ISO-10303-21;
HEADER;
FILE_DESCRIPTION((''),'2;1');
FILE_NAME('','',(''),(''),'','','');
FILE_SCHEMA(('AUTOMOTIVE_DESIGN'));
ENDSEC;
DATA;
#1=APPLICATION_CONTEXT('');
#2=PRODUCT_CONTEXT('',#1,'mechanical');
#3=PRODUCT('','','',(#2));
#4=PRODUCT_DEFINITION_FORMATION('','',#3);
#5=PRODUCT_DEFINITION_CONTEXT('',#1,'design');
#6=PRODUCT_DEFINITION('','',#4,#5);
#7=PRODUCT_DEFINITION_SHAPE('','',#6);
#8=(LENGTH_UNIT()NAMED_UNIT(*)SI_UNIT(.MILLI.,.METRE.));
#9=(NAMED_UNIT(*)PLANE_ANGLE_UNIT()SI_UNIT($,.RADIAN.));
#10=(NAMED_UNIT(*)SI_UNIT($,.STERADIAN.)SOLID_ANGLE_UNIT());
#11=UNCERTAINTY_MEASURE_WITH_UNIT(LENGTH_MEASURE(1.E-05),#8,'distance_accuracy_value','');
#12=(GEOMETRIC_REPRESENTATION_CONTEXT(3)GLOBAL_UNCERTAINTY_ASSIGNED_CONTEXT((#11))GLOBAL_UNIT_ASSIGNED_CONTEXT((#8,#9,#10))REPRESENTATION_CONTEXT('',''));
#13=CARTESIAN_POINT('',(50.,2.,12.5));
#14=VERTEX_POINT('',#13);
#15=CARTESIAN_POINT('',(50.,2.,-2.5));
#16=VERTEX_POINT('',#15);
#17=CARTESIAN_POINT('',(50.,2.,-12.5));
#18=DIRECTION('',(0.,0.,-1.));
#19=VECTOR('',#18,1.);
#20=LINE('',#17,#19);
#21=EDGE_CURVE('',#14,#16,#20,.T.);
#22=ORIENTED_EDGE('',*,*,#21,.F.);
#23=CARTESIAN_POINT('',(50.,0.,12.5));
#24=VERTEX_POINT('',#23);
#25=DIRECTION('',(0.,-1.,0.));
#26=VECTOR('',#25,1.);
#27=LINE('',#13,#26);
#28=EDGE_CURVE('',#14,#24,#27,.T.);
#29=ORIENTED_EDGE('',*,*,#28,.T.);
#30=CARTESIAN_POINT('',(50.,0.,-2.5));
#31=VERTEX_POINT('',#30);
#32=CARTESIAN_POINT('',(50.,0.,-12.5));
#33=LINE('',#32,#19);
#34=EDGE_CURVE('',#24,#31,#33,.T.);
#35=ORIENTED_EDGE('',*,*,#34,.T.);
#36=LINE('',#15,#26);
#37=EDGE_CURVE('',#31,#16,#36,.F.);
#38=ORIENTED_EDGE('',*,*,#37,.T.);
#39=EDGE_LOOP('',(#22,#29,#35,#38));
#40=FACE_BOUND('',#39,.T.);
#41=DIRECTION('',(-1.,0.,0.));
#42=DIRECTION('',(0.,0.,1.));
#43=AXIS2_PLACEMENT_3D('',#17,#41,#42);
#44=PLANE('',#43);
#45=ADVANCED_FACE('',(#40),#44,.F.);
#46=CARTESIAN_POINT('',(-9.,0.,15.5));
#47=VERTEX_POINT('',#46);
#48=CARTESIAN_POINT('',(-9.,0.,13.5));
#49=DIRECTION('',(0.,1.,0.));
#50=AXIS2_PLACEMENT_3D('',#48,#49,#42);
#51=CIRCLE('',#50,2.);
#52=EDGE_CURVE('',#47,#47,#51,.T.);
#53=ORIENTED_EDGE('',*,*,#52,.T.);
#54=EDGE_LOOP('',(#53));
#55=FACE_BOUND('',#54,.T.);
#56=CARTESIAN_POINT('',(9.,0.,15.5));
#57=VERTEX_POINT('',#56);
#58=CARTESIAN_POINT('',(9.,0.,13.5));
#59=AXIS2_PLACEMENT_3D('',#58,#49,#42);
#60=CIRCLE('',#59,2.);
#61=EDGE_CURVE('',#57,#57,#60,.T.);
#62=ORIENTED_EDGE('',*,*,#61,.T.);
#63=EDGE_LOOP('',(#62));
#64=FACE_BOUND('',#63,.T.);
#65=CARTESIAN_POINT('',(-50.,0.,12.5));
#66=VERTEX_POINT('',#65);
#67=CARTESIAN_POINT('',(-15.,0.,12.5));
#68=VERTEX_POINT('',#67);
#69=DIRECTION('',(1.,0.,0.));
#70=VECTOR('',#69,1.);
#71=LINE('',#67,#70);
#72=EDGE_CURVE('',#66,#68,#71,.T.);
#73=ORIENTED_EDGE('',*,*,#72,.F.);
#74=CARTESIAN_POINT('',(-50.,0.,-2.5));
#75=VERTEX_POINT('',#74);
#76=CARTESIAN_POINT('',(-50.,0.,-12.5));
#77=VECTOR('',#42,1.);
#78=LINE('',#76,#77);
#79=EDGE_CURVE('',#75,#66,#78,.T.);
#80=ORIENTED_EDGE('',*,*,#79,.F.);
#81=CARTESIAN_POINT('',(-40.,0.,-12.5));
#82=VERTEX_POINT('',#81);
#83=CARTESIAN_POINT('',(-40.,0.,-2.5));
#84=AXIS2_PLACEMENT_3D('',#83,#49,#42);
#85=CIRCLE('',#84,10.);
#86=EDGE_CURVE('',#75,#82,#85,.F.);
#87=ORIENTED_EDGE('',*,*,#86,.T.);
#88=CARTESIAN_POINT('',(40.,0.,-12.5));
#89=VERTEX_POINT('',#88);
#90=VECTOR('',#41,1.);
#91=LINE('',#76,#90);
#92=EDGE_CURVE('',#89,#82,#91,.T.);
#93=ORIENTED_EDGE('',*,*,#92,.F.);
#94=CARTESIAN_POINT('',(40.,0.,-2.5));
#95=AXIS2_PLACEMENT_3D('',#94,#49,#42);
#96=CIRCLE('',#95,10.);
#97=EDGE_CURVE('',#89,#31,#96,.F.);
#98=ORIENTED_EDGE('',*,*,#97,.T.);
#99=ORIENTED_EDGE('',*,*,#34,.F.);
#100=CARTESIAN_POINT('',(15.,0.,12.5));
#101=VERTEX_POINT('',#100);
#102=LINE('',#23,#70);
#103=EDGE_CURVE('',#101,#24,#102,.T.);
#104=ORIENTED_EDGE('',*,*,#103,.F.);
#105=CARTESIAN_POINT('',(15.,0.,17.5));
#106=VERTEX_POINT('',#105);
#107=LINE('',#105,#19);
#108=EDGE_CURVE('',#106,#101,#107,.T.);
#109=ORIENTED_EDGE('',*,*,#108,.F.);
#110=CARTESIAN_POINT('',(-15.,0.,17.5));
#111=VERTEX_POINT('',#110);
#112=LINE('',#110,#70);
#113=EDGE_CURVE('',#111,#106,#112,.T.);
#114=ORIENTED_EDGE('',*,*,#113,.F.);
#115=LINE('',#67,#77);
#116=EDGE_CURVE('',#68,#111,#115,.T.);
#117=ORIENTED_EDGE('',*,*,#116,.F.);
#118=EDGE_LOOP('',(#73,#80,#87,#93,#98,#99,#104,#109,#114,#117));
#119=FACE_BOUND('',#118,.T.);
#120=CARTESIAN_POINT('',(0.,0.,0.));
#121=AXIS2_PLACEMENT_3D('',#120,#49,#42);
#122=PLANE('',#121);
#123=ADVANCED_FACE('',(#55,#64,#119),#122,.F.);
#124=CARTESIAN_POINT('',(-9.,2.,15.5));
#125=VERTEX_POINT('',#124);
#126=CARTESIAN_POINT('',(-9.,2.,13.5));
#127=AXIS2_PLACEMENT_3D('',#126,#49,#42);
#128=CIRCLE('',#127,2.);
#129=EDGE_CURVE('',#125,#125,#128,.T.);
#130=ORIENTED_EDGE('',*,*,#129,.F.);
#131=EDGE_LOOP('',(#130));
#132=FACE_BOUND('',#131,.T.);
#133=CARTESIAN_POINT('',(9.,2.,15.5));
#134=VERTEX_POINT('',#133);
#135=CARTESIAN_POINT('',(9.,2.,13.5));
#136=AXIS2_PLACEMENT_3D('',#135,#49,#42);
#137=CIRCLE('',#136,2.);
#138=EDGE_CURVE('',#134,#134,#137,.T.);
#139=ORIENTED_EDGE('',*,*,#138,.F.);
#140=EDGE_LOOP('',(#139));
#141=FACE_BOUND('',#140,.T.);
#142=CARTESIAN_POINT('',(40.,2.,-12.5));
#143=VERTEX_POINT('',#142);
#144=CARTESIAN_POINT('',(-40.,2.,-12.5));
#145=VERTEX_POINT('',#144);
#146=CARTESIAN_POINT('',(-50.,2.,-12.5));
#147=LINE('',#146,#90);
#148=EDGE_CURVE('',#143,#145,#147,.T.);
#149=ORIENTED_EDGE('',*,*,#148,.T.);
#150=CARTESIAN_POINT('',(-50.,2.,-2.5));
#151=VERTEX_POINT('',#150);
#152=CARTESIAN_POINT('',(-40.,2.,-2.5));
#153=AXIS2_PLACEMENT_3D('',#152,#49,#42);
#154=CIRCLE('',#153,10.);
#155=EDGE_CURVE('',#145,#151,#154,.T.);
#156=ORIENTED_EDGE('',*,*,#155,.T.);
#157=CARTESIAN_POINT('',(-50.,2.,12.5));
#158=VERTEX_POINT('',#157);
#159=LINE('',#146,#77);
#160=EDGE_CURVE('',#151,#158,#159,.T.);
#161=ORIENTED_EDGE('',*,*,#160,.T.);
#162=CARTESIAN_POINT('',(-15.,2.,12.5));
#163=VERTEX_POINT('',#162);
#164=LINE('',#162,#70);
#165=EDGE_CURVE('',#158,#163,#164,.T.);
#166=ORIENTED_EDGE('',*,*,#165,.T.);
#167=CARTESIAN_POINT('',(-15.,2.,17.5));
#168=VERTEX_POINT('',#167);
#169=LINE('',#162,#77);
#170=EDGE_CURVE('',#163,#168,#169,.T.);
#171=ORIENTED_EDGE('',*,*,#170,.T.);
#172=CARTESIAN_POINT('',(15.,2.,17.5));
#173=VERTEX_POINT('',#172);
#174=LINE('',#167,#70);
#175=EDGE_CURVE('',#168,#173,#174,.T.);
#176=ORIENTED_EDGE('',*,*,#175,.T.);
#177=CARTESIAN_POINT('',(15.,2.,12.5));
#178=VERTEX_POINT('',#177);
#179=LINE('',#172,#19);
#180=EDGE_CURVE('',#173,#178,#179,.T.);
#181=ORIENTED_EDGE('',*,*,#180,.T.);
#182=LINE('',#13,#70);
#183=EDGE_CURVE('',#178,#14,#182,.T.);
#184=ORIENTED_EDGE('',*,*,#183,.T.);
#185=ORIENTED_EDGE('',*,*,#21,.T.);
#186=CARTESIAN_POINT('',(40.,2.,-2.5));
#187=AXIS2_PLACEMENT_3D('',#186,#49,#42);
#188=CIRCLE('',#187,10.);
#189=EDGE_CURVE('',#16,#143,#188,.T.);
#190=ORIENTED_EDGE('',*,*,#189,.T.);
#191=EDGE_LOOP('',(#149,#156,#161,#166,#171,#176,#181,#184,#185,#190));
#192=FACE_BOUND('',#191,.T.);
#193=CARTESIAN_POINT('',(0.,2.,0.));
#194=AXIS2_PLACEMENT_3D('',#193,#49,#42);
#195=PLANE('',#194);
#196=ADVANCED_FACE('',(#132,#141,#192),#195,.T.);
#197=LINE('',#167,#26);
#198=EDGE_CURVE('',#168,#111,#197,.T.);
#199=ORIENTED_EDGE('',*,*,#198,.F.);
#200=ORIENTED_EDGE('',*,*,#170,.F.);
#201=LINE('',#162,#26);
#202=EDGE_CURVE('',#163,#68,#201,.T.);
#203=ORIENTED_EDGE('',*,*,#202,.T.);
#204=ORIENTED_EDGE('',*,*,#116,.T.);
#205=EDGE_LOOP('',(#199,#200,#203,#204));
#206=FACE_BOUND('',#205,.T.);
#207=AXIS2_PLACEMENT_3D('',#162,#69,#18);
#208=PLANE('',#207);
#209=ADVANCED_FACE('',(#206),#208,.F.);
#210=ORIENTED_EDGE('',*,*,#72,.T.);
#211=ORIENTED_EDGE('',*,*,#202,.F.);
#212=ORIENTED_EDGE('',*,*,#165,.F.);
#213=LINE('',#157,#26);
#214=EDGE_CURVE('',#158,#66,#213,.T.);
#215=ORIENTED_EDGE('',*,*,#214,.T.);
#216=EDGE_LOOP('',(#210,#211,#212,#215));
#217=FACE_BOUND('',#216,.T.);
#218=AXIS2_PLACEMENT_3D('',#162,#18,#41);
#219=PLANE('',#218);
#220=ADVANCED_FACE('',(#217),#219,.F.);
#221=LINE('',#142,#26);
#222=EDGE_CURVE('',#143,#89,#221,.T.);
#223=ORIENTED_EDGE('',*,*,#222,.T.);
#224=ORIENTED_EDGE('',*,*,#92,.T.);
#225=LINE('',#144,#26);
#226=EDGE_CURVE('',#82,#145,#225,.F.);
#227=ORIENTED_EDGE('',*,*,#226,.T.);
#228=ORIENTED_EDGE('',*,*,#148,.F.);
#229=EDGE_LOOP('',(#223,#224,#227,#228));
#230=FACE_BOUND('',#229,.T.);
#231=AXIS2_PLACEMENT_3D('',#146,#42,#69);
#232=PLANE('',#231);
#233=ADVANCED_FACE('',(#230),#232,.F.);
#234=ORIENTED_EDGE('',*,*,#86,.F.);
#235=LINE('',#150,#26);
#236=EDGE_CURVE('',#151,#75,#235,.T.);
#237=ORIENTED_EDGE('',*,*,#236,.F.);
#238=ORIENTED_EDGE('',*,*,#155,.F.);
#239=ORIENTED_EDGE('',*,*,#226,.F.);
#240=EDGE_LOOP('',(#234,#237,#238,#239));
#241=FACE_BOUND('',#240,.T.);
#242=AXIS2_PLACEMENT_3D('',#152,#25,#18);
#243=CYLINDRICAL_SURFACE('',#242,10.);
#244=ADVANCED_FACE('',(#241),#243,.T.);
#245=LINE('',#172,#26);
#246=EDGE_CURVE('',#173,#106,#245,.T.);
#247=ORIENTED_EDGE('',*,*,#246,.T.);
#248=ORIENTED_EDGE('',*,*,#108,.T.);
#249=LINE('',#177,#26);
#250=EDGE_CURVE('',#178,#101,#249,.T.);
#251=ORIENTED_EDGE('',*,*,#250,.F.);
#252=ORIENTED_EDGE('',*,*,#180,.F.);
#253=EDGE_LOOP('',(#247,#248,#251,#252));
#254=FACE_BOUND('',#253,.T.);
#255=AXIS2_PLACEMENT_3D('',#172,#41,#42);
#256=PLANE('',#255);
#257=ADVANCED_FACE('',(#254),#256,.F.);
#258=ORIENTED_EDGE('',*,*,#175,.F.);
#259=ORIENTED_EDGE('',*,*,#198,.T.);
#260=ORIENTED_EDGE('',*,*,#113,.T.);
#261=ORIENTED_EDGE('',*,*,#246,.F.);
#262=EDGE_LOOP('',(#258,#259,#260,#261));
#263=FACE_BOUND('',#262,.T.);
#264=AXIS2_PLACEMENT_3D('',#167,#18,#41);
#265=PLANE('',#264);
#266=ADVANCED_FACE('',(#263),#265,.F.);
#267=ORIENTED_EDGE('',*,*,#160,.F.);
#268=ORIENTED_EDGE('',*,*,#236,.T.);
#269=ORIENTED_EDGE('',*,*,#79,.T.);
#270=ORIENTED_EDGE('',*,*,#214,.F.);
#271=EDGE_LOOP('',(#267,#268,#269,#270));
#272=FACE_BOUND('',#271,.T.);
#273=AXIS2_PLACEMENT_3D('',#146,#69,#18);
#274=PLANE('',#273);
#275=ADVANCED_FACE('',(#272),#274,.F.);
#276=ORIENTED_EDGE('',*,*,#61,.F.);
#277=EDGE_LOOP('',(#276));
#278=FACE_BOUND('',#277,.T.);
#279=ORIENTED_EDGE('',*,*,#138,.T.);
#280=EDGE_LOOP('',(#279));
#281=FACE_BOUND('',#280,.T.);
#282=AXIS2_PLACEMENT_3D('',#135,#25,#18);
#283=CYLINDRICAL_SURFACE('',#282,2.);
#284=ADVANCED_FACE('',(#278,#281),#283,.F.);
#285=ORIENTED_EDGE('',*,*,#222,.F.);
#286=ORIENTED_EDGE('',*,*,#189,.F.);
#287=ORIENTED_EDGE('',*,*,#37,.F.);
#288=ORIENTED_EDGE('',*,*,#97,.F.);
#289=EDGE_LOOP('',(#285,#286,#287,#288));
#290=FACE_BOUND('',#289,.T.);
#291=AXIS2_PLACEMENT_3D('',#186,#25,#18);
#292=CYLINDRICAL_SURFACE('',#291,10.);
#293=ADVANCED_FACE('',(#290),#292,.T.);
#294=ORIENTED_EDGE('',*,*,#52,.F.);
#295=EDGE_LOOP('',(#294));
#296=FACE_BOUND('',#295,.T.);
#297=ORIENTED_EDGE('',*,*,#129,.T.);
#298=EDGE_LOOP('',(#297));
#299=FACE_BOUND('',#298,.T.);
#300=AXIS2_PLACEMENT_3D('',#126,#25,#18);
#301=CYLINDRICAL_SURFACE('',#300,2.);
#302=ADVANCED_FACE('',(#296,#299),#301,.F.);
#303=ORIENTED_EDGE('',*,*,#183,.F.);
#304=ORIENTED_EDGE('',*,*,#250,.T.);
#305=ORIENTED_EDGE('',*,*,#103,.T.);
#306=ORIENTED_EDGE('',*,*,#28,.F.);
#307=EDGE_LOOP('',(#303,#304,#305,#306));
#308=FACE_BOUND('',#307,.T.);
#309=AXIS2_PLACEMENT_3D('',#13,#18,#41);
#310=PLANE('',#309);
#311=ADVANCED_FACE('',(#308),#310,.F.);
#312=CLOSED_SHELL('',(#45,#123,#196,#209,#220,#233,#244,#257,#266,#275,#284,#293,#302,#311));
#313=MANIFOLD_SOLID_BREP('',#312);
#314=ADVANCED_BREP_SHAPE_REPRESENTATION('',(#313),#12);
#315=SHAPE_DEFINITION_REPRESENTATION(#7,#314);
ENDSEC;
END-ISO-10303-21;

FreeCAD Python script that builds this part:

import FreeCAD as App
import Part
import Sketcher
from FreeCAD import Vector
Q = App.Units.Quantity


def edges_at(feature, points):
    """Names of the edges that pass closest to the given points."""
    edges = feature.Shape.Edges
    near = lambda p: min(range(len(edges)), key=lambda i: edges[i].distToShape(Part.Vertex(*p))[0])
    return sorted({f"Edge{near(p) + 1}" for p in points})

doc = App.newDocument("Part")
body = doc.addObject("PartDesign::Body", "Body")

# Sketch on XZ plane
sketch1 = body.newObject("Sketcher::SketchObject", "Sketch")
sketch1.AttachmentSupport = (doc.getObject("XZ_Plane"), [""])
sketch1.MapMode = "FlatFace"
sketch1.addGeometry([
    Part.LineSegment(Vector(50, 12.5, 0), Vector(50, -12.5, 0)),  # 0
    Part.LineSegment(Vector(50, -12.5, 0), Vector(-50, -12.5, 0)),  # 1
    Part.LineSegment(Vector(-50, -12.5, 0), Vector(-50, 12.5, 0)),  # 2
    Part.LineSegment(Vector(-50, 12.5, 0), Vector(-15, 12.5, 0)),  # 3
    Part.LineSegment(Vector(-15, 12.5, 0), Vector(-15, 17.5, 0)),  # 4
    Part.LineSegment(Vector(-15, 17.5, 0), Vector(15, 17.5, 0)),  # 5
    Part.LineSegment(Vector(15, 17.5, 0), Vector(15, 12.5, 0)),  # 6
    Part.LineSegment(Vector(15, 12.5, 0), Vector(50, 12.5, 0)),  # 7
    Part.Circle(Vector(9, 13.5, 0), Vector(0, 0, 1), 2),  # 8
    Part.Circle(Vector(-9, 13.5, 0), Vector(0, 0, 1), 2),  # 9
], False)
sketch1.addConstraint([
    Sketcher.Constraint("Coincident", 0, 2, 1, 1),
    Sketcher.Constraint("Coincident", 1, 2, 2, 1),
    Sketcher.Constraint("Coincident", 2, 2, 3, 1),
    Sketcher.Constraint("Coincident", 3, 2, 4, 1),
    Sketcher.Constraint("Coincident", 4, 2, 5, 1),
    Sketcher.Constraint("Coincident", 5, 2, 6, 1),
    Sketcher.Constraint("Coincident", 6, 2, 7, 1),
    Sketcher.Constraint("Coincident", 7, 2, 0, 1),
    Sketcher.Constraint("Vertical", 0),
    Sketcher.Constraint("Horizontal", 1),
    Sketcher.Constraint("Vertical", 2),
    Sketcher.Constraint("Horizontal", 3),
    Sketcher.Constraint("Vertical", 4),
    Sketcher.Constraint("Horizontal", 5),
    Sketcher.Constraint("Vertical", 6),
    Sketcher.Constraint("Horizontal", 7),
    Sketcher.Constraint("Equal", 8, 9),
    Sketcher.Constraint("Symmetric", 0, 2, 2, 2, -1, 1),
    Sketcher.Constraint("Symmetric", 8, 3, 9, 3, -2),
    Sketcher.Constraint("Symmetric", 3, 2, 6, 2, -2),
    Sketcher.Constraint("Diameter", 8, Q("4 mm")),
    Sketcher.Constraint("DistanceX", 1, 2, 1, 1, Q("100 mm")),
    Sketcher.Constraint("DistanceX", 3, 1, 3, 2, Q("35 mm")),
    Sketcher.Constraint("DistanceY", 0, 2, 0, 1, Q("25 mm")),
    Sketcher.Constraint("DistanceY", 4, 1, 4, 2, Q("5 mm")),
    Sketcher.Constraint("DistanceX", -1, 1, 8, 3, Q("9 mm")),
    Sketcher.Constraint("DistanceY", 0, 2, 8, 3, Q("26 mm")),
])
pad1 = body.newObject("PartDesign::Pad", "Pad")
pad1.Profile = sketch1
pad1.Length = 2
pad1.Reversed = True
doc.recompute()

fillet = body.newObject("PartDesign::Fillet", "Fillet")
fillet.Base = (pad1, edges_at(pad1, [(-50, 1, -12.5), (50, 1, -12.5)]))
fillet.Radius = 10

doc.recompute()
